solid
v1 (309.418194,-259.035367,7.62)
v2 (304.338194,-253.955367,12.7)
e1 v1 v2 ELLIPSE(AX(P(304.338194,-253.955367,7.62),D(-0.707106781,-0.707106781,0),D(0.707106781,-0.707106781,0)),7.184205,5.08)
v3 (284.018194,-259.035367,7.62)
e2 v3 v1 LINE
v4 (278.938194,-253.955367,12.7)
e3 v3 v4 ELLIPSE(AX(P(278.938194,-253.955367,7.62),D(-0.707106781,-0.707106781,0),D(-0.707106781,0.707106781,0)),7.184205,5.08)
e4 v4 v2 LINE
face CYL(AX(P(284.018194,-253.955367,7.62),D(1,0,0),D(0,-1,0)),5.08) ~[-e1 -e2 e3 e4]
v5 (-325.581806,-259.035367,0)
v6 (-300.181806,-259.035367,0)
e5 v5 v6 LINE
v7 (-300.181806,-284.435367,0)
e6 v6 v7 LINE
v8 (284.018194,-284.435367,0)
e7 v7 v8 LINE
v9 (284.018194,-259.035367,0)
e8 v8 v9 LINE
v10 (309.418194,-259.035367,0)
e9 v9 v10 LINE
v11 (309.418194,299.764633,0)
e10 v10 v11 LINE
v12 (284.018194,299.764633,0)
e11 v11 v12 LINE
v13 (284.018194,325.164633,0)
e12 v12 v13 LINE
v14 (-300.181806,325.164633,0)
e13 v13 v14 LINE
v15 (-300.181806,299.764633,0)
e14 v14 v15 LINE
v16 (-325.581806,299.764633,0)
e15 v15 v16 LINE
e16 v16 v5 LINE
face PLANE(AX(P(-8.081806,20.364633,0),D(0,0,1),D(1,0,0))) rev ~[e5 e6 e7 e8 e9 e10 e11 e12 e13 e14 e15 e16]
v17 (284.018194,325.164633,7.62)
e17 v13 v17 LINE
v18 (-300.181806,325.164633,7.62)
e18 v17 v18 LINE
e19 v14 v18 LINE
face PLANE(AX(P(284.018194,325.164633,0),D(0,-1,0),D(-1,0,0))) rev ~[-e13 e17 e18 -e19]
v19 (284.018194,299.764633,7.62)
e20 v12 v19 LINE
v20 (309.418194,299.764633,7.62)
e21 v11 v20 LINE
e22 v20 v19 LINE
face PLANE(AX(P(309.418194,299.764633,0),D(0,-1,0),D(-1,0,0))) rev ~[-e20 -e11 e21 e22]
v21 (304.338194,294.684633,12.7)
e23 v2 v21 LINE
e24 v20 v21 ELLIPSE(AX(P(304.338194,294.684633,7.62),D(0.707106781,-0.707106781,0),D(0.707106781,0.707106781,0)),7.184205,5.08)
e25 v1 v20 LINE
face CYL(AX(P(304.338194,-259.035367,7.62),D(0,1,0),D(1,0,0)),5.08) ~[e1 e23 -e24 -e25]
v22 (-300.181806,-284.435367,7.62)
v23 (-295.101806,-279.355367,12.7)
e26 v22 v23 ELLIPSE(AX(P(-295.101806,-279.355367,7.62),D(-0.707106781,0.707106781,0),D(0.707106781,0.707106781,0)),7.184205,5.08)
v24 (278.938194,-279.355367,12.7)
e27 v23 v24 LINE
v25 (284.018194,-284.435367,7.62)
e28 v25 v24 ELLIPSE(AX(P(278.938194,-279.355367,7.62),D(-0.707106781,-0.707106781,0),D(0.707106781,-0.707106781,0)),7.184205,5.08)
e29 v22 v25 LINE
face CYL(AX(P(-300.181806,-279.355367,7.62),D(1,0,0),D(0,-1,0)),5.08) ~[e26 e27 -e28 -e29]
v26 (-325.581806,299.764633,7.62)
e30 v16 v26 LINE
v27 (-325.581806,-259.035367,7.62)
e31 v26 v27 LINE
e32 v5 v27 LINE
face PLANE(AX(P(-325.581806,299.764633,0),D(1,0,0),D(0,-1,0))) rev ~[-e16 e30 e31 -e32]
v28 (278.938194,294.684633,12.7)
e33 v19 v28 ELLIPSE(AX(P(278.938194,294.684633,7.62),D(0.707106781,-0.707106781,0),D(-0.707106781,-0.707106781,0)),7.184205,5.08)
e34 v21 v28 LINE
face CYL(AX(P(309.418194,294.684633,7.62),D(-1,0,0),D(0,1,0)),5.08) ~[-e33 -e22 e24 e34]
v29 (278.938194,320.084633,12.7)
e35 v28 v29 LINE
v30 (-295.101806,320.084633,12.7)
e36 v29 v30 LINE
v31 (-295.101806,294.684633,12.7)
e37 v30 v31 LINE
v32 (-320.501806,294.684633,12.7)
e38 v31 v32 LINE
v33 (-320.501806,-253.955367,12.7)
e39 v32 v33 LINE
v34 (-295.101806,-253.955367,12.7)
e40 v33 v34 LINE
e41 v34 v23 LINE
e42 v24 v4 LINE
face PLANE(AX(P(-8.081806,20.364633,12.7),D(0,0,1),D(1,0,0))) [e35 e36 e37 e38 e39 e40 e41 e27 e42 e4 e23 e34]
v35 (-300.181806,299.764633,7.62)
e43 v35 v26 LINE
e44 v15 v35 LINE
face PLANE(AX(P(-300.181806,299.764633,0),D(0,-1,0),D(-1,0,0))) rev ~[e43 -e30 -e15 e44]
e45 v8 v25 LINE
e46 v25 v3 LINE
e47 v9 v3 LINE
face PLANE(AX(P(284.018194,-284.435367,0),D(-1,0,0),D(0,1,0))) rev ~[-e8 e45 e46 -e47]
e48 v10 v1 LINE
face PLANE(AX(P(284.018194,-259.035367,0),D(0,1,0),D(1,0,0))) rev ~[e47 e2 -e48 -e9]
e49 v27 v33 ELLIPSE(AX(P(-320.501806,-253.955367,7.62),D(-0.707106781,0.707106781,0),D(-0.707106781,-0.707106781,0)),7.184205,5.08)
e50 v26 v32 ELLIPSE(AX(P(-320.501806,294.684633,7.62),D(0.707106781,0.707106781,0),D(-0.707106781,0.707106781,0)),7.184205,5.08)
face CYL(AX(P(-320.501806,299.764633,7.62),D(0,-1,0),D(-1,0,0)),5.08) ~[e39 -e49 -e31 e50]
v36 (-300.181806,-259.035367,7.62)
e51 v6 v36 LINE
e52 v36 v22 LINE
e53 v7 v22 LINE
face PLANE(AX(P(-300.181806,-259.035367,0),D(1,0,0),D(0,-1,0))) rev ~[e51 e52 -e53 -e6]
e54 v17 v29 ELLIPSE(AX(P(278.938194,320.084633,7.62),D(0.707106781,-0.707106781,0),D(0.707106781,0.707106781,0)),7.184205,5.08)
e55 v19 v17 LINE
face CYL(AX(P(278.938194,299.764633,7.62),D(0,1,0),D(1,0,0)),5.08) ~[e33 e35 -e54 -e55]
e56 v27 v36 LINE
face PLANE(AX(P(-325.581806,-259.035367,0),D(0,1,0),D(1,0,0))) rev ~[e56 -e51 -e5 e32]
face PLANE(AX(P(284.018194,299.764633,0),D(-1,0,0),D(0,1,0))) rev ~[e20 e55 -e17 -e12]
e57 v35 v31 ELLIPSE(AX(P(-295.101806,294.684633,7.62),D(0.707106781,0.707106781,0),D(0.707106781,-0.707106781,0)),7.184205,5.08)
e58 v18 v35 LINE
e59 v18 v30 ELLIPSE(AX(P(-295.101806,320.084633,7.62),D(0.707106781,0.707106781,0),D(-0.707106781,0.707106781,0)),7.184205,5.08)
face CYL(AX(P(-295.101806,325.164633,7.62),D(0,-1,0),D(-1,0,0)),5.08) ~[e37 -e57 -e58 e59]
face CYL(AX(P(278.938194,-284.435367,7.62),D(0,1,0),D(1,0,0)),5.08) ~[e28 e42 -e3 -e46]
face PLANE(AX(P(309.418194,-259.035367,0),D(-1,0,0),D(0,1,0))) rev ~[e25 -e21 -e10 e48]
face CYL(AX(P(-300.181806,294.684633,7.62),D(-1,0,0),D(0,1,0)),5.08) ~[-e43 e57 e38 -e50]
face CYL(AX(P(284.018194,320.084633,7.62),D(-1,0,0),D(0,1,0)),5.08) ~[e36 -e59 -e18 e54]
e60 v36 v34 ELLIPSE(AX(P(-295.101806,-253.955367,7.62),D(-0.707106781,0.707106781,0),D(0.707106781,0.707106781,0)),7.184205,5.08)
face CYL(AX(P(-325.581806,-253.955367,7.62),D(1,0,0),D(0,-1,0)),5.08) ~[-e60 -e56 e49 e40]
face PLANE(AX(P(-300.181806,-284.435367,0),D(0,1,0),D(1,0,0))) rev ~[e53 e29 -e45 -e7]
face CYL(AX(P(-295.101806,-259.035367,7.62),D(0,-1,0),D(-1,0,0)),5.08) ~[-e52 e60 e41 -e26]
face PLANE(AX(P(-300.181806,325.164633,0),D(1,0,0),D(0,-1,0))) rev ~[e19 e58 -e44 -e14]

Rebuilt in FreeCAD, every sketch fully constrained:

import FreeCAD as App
import Part
import Sketcher
from FreeCAD import Vector
Q = App.Units.Quantity


def edges_at(feature, points):
    """Names of the edges that pass closest to the given points."""
    edges = feature.Shape.Edges
    near = lambda p: min(range(len(edges)), key=lambda i: edges[i].distToShape(Part.Vertex(*p))[0])
    return sorted({f"Edge{near(p) + 1}" for p in points})


def add_polygon(sketch, points):
    """Adds a closed chain of lines whose ends are joined by coincident constraints."""
    first, n = sketch.GeometryCount, len(points)
    for a, b in zip(points, points[1:] + points[:1]):
        sketch.addGeometry(Part.LineSegment(App.Vector(*a, 0), App.Vector(*b, 0)), False)
    for i in range(n):
        sketch.addConstraint(Sketcher.Constraint("Coincident", first + i, 2, first + (i + 1) % n, 1))

doc = App.newDocument("Part")
body = doc.addObject("PartDesign::Body", "Body")

# Sketch on XY plane
sketch1 = body.newObject("Sketcher::SketchObject", "Sketch")
sketch1.AttachmentSupport = (doc.getObject("XY_Plane"), [""])
sketch1.MapMode = "FlatFace"
add_polygon(sketch1, [(-300, -284), (284, -284), (284, -259), (309, -259), (309, 300), (284, 300), (284, 325), (-300, 325), (-300, 300), (-326, 300), (-326, -259), (-300, -259)])  # lines 0-11
sketch1.addConstraint([
    Sketcher.Constraint("Horizontal", 0),
    Sketcher.Constraint("Vertical", 1),
    Sketcher.Constraint("Horizontal", 2),
    Sketcher.Constraint("Vertical", 3),
    Sketcher.Constraint("Horizontal", 4),
    Sketcher.Constraint("Vertical", 5),
    Sketcher.Constraint("Horizontal", 6),
    Sketcher.Constraint("Vertical", 7),
    Sketcher.Constraint("Horizontal", 8),
    Sketcher.Constraint("Vertical", 9),
    Sketcher.Constraint("Horizontal", 10),
    Sketcher.Constraint("Vertical", 11),
    Sketcher.Constraint("Horizontal", 4, 2, 7, 2),
    Sketcher.Constraint("Horizontal", 2, 2, 9, 2),
    Sketcher.Constraint("Vertical", 1, 2, 4, 2),
    Sketcher.Constraint("Vertical", 7, 2, 10, 2),
    Sketcher.Constraint("Equal", 4, 8),
    Sketcher.Constraint("Equal", 10, 1),
    Sketcher.Constraint("Equal", 1, 5),
    Sketcher.Constraint("DistanceX", 0, 1, 0, 2, Q("23 in")),
    Sketcher.Constraint("DistanceX", 2, 1, 2, 2, Q("1 in")),
    Sketcher.Constraint("DistanceY", 3, 1, 3, 2, Q("22 in")),
    Sketcher.Constraint("DistanceX", -1, 1, 0, 2, 284.018194),
    Sketcher.Constraint("DistanceY", 0, 2, -1, 1, 284.435367),
])
pad1 = body.newObject("PartDesign::Pad", "Pad")
pad1.Profile = sketch1
pad1.Length = Q("0.5 in")
doc.recompute()

fillet = body.newObject("PartDesign::Fillet", "Fillet")
fillet.Base = (pad1, edges_at(pad1, [
    (-8.082, -284.435, 12.7),
    (284.018, -271.735, 12.7),
    (296.718, -259.035, 12.7),
    (309.418, 20.365, 12.7),
    (296.718, 299.765, 12.7),
    (284.018, 312.465, 12.7),
    (-8.082, 325.165, 12.7),
    (-300.182, 312.465, 12.7),
    (-312.882, 299.765, 12.7),
    (-325.582, 20.365, 12.7),
    (-312.882, -259.035, 12.7),
    (-300.182, -271.735, 12.7),
]))
fillet.Radius = Q("0.2 in")

doc.recompute()
